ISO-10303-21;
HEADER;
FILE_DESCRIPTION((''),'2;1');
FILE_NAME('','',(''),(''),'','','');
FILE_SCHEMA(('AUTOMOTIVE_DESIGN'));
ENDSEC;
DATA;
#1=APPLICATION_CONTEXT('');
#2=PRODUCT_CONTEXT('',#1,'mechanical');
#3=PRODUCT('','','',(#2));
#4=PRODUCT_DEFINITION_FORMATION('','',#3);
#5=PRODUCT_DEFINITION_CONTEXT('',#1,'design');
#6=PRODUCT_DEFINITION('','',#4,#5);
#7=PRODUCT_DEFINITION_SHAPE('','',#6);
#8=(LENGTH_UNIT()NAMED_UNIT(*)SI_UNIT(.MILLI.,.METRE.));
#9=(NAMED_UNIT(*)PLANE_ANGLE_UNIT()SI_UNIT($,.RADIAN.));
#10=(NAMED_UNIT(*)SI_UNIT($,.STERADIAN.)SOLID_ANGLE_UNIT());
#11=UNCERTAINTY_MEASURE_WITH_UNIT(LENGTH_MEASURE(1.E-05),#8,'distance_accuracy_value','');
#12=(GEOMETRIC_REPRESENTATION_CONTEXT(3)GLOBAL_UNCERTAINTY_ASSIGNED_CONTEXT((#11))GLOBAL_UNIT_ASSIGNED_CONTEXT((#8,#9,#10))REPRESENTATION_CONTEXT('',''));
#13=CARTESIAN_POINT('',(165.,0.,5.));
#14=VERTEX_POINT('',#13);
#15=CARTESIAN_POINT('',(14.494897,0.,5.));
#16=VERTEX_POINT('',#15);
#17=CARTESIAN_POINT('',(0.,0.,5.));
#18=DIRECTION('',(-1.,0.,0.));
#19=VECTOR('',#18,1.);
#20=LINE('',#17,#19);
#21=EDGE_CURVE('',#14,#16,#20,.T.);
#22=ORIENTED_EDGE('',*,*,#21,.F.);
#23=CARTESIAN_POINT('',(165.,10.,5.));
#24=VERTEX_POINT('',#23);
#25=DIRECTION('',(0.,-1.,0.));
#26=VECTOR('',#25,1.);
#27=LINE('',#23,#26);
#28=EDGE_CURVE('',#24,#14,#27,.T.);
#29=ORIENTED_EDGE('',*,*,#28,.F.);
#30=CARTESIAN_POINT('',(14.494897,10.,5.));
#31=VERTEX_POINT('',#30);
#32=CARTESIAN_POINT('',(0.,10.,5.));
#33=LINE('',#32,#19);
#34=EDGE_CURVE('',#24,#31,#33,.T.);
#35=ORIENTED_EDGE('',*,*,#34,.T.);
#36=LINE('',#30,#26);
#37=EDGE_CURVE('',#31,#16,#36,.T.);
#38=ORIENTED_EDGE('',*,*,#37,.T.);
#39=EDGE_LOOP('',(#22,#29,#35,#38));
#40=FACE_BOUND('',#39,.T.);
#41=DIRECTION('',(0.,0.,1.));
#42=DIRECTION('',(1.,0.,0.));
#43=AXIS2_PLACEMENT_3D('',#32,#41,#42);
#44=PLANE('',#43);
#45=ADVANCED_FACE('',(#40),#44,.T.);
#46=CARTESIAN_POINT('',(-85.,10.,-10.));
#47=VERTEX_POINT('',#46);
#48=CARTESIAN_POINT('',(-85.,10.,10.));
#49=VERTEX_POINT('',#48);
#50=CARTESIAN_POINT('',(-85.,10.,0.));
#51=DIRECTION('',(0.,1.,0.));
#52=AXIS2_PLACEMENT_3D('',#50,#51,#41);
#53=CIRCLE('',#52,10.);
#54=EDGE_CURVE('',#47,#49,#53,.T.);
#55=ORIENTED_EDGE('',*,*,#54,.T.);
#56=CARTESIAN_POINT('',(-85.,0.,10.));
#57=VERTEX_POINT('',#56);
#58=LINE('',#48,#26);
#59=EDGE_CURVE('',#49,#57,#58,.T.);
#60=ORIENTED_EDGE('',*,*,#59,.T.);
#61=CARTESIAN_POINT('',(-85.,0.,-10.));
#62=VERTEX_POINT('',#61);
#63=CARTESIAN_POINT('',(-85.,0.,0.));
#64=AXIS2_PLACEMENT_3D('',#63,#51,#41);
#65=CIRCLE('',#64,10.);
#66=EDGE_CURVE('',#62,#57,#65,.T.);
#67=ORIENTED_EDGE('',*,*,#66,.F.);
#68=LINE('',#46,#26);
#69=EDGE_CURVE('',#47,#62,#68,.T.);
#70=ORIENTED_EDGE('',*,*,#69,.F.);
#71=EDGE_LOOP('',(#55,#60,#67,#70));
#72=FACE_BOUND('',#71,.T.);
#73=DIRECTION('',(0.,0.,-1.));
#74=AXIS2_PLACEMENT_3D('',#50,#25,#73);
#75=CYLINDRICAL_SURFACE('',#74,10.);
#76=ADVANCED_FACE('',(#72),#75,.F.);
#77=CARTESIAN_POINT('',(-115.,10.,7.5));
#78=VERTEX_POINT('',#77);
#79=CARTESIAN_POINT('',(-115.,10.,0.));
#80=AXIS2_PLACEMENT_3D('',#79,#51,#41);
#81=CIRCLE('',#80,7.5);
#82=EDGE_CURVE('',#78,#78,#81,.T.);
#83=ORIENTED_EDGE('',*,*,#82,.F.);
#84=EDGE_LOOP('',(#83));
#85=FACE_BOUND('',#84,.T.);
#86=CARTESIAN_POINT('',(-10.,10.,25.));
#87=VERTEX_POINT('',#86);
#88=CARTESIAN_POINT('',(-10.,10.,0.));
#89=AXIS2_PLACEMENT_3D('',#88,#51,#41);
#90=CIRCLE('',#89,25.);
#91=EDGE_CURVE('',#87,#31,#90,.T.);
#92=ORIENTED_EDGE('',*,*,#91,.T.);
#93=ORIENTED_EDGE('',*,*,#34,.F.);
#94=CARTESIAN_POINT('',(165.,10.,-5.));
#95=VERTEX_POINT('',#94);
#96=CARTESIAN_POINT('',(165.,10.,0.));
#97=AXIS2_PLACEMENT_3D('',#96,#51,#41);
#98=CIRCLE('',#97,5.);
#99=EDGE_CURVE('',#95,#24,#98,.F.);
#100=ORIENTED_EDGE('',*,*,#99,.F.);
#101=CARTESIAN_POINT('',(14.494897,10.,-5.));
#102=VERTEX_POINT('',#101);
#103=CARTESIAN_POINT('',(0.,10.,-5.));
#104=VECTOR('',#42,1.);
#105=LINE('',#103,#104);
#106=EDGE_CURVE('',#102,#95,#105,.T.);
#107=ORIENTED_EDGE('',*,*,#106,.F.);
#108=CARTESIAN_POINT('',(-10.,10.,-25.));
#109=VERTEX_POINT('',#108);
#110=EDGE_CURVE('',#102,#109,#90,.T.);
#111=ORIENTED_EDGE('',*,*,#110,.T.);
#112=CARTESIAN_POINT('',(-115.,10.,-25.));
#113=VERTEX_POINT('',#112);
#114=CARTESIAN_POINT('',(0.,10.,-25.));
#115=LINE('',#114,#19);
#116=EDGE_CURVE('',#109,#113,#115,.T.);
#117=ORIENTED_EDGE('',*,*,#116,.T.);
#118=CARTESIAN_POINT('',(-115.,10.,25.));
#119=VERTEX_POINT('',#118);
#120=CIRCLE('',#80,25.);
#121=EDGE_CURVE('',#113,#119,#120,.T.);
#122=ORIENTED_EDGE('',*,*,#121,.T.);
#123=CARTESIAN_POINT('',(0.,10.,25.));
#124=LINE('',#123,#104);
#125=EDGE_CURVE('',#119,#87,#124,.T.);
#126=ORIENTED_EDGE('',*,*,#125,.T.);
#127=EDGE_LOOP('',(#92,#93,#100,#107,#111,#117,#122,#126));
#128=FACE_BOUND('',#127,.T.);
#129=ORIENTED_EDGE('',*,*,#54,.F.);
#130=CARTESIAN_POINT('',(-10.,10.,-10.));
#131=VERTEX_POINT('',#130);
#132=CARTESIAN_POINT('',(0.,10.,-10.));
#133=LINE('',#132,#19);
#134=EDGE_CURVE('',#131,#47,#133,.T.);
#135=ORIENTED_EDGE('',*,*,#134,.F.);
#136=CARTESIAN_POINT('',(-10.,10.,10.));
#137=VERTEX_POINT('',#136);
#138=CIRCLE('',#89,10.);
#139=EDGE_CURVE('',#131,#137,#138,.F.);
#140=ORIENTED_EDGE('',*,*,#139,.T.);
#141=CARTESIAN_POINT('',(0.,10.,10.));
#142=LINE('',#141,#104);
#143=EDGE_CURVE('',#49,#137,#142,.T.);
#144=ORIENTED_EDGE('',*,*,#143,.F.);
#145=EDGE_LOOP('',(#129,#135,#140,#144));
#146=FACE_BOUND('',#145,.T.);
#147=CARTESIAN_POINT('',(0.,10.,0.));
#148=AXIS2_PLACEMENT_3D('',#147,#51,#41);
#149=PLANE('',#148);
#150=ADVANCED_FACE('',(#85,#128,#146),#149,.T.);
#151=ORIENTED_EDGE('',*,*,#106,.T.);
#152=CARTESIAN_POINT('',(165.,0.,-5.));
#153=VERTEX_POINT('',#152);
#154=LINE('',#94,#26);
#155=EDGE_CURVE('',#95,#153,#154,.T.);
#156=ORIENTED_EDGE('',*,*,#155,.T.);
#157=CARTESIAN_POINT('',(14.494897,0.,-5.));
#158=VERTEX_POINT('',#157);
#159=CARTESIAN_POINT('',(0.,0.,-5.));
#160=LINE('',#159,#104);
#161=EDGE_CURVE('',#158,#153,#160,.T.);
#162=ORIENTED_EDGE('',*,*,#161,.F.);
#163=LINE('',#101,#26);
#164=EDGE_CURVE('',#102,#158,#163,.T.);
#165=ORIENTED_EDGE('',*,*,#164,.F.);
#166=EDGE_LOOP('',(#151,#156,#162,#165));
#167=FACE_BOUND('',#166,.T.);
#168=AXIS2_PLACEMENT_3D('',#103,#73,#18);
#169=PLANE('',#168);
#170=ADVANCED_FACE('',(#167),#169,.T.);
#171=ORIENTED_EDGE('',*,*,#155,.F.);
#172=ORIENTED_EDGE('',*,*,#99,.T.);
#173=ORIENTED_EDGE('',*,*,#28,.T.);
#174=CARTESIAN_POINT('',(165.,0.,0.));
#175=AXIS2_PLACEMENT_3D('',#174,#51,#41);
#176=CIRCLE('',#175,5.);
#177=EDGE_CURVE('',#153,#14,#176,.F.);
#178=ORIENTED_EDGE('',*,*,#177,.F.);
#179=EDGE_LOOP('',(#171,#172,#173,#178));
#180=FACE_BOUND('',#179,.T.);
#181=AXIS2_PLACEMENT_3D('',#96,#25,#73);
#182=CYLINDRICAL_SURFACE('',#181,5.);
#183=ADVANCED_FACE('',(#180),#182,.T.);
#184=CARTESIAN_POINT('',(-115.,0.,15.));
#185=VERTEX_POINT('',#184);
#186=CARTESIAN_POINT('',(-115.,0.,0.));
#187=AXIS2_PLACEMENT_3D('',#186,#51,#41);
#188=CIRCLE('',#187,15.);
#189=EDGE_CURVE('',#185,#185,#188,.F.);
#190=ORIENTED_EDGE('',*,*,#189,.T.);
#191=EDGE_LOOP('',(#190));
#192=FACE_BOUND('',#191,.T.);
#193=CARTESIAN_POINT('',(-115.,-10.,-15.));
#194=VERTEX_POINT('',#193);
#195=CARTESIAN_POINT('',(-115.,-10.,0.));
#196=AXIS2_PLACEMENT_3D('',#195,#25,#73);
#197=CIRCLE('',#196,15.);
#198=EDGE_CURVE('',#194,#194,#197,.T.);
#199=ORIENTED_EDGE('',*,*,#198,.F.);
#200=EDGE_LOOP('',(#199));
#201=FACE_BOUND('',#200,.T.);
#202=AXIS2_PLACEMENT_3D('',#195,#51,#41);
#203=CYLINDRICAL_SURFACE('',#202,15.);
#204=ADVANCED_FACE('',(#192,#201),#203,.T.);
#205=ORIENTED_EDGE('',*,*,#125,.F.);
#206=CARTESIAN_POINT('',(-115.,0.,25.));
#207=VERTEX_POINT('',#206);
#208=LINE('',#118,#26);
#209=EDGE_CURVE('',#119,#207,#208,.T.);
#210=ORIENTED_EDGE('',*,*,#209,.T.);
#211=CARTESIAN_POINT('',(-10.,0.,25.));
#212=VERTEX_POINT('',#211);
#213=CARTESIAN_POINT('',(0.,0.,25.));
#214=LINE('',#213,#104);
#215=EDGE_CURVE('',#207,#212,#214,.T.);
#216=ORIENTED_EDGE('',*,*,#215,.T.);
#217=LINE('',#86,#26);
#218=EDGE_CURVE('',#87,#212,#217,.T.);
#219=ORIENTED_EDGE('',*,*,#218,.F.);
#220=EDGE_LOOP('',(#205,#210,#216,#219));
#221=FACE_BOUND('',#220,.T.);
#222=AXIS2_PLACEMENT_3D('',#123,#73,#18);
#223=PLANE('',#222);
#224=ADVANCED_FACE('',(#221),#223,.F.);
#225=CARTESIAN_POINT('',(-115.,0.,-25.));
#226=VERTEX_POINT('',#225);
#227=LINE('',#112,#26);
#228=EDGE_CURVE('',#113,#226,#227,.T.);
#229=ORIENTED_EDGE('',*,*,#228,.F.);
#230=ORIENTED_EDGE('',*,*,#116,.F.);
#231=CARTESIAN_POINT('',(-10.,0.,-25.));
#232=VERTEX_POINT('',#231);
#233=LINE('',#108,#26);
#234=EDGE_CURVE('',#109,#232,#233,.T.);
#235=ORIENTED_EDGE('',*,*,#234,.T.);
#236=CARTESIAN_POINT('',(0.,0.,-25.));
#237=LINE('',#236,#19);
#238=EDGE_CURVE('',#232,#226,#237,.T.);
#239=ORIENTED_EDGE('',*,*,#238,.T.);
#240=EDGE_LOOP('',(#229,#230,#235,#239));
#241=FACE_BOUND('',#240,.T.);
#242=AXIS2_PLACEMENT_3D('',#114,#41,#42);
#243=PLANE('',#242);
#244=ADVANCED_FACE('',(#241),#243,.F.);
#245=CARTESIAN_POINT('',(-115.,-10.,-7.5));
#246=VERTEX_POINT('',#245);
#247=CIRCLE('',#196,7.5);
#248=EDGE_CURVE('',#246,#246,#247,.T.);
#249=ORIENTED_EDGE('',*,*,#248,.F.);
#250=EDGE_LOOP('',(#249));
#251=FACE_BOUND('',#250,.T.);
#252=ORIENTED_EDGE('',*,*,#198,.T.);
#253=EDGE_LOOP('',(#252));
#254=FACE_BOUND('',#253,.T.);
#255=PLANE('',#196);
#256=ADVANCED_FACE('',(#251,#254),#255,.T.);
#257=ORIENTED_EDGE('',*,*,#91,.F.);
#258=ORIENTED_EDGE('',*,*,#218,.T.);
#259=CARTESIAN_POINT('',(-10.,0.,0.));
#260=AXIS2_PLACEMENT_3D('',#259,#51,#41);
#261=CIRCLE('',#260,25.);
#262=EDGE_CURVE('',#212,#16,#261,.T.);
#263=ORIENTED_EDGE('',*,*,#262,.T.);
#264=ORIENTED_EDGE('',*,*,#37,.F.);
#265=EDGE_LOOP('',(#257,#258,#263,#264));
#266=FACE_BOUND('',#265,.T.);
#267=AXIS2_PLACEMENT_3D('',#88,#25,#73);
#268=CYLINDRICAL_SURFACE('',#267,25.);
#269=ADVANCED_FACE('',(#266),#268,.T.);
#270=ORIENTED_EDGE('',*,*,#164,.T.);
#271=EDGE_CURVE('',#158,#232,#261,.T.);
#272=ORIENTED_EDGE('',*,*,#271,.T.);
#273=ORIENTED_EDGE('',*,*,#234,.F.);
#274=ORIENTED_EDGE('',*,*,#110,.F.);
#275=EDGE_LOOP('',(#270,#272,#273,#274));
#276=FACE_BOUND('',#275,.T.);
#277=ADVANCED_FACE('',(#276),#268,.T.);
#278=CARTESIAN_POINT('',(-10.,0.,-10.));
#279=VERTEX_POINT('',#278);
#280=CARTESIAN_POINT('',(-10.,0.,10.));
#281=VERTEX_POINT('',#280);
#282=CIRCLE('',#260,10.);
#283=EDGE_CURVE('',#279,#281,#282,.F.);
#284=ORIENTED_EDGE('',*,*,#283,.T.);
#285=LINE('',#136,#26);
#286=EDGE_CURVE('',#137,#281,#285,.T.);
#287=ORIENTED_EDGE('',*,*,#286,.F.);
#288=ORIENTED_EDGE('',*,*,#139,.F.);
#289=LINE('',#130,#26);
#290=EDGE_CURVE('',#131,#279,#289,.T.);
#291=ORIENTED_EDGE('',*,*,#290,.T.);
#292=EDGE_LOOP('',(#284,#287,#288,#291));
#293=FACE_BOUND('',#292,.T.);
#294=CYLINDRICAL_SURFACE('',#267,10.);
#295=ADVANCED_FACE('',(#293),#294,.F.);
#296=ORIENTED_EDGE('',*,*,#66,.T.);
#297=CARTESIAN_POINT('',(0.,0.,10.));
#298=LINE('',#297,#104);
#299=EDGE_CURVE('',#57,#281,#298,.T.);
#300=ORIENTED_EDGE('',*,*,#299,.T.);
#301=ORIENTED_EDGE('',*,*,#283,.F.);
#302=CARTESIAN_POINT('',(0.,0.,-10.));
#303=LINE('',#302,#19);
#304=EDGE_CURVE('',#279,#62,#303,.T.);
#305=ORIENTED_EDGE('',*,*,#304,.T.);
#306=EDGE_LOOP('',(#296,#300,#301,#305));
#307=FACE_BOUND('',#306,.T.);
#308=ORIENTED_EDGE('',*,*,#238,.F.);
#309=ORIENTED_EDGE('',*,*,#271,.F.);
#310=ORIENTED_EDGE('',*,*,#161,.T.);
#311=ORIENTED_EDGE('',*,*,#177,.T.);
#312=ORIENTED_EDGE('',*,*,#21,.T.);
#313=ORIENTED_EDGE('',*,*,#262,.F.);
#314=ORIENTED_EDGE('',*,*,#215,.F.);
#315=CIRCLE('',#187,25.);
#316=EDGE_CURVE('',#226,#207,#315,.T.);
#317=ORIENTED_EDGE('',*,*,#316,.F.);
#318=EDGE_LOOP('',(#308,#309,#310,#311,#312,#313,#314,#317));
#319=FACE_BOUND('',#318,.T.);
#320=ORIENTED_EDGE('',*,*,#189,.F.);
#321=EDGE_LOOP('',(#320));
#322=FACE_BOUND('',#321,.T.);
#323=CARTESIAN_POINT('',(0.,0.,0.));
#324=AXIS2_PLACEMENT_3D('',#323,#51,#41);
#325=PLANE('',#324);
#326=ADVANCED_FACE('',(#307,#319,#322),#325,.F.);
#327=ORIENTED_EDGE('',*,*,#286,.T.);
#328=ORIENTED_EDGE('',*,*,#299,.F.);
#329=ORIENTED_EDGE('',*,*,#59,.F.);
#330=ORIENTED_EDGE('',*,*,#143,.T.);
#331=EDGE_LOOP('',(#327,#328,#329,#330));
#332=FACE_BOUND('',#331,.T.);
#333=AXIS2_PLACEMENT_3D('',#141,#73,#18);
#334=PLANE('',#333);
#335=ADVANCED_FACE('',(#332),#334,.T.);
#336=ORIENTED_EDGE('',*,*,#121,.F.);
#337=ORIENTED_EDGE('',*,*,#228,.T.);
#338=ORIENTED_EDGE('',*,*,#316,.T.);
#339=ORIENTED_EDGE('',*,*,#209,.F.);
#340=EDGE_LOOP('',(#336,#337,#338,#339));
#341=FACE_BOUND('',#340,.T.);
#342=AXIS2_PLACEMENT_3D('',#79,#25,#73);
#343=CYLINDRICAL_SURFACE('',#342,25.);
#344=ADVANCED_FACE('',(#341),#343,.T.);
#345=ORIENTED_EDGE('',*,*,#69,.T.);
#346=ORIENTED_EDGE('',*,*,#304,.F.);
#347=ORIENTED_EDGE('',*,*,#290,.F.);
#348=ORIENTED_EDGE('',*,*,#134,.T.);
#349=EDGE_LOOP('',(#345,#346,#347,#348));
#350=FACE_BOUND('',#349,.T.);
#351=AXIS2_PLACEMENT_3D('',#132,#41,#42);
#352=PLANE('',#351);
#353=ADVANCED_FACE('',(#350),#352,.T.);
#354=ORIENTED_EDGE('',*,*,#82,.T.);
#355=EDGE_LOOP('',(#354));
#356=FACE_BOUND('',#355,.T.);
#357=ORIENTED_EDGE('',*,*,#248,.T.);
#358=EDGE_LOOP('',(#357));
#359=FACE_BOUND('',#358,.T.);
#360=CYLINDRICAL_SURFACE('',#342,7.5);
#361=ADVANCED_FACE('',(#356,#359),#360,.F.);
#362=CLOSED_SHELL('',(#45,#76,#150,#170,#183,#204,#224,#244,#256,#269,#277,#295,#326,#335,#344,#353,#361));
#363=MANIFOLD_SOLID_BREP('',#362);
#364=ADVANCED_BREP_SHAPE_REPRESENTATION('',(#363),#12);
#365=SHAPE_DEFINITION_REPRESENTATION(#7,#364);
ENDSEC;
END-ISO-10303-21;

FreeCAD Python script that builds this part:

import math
import FreeCAD as App
import Part
import Sketcher
Q = App.Units.Quantity

doc = App.newDocument("Part")
body = doc.addObject("PartDesign::Body", "Body")

sketch1 = doc.addObject("Sketcher::SketchObject", "Sketch")
body.addObject(sketch1)
sketch1.AttachmentSupport = (doc.XZ_Plane, [""])
sketch1.MapMode = "FlatFace"
sketch1.addGeometry(Part.LineSegment(App.Vector(165, -5, 0), App.Vector(14, -5, 0)), False)
sketch1.addGeometry(Part.ArcOfCircle(Part.Circle(App.Vector(-10, 0, 0), App.Vector(0, 0, 1), 25), math.radians(-90), math.radians(-12)), False)
sketch1.addGeometry(Part.LineSegment(App.Vector(-10, -25, 0), App.Vector(-115, -25, 0)), False)
sketch1.addGeometry(Part.ArcOfCircle(Part.Circle(App.Vector(-115, 0, 0), App.Vector(0, 0, 1), 25), math.radians(90), math.radians(270)), False)
sketch1.addGeometry(Part.LineSegment(App.Vector(-115, 25, 0), App.Vector(-10, 25, 0)), False)
sketch1.addGeometry(Part.ArcOfCircle(Part.Circle(App.Vector(-10, 0, 0), App.Vector(0, 0, 1), 25), math.radians(12), math.radians(90)), False)
sketch1.addGeometry(Part.LineSegment(App.Vector(14, 5, 0), App.Vector(165, 5, 0)), False)
sketch1.addGeometry(Part.ArcOfCircle(Part.Circle(App.Vector(165, 0, 0), App.Vector(0, 0, 1), 5), math.radians(-90), math.radians(90)), False)
sketch1.addGeometry(Part.LineSegment(App.Vector(-85, -10, 0), App.Vector(-10, -10, 0)), False)
sketch1.addGeometry(Part.ArcOfCircle(Part.Circle(App.Vector(-10, 0, 0), App.Vector(0, 0, 1), 10), math.radians(-90), math.radians(90)), False)
sketch1.addGeometry(Part.LineSegment(App.Vector(-10, 10, 0), App.Vector(-85, 10, 0)), False)
sketch1.addGeometry(Part.ArcOfCircle(Part.Circle(App.Vector(-85, 0, 0), App.Vector(0, 0, 1), 10), math.radians(90), math.radians(270)), False)
sketch1.addGeometry(Part.Circle(App.Vector(-115, 0, 0), App.Vector(0, 0, 1), 8), False)
sketch1.addConstraint(Sketcher.Constraint("Coincident", 0, 2, 1, 2))
sketch1.addConstraint(Sketcher.Constraint("Tangent", 1, 1, 2, 1))
sketch1.addConstraint(Sketcher.Constraint("Tangent", 2, 2, 3, 2))
sketch1.addConstraint(Sketcher.Constraint("Tangent", 3, 1, 4, 1))
sketch1.addConstraint(Sketcher.Constraint("Tangent", 4, 2, 5, 2))
sketch1.addConstraint(Sketcher.Constraint("Coincident", 5, 1, 6, 1))
sketch1.addConstraint(Sketcher.Constraint("Tangent", 6, 2, 7, 2))
sketch1.addConstraint(Sketcher.Constraint("Tangent", 7, 1, 0, 1))
sketch1.addConstraint(Sketcher.Constraint("Tangent", 8, 2, 9, 1))
sketch1.addConstraint(Sketcher.Constraint("Tangent", 9, 2, 10, 1))
sketch1.addConstraint(Sketcher.Constraint("Tangent", 10, 2, 11, 1))
sketch1.addConstraint(Sketcher.Constraint("Tangent", 11, 2, 8, 1))
sketch1.addConstraint(Sketcher.Constraint("Horizontal", 0))
sketch1.addConstraint(Sketcher.Constraint("Horizontal", 2))
sketch1.addConstraint(Sketcher.Constraint("Horizontal", 4))
sketch1.addConstraint(Sketcher.Constraint("Horizontal", 6))
sketch1.addConstraint(Sketcher.Constraint("Horizontal", 8))
sketch1.addConstraint(Sketcher.Constraint("Horizontal", 10))
sketch1.addConstraint(Sketcher.Constraint("Coincident", 5, 3, 1, 3))
sketch1.addConstraint(Sketcher.Constraint("Coincident", 9, 3, 1, 3))
sketch1.addConstraint(Sketcher.Constraint("Coincident", 12, 3, 3, 3))
sketch1.addConstraint(Sketcher.Constraint("Equal", 1, 3))
sketch1.addConstraint(Sketcher.Constraint("Symmetric", 0, 2, 5, 1, -1))
sketch1.addConstraint(Sketcher.Constraint("Diameter", 12, Q("15 mm")))
sketch1.addConstraint(Sketcher.Constraint("Radius", 1, Q("25 mm")))
sketch1.addConstraint(Sketcher.Constraint("Radius", 7, Q("5 mm")))
sketch1.addConstraint(Sketcher.Constraint("Radius", 9, Q("10 mm")))
sketch1.addConstraint(Sketcher.Constraint("DistanceX", 2, 2, 2, 1, Q("105 mm")))
sketch1.addConstraint(Sketcher.Constraint("DistanceX", 8, 1, 8, 2, Q("75 mm")))
sketch1.addConstraint(Sketcher.Constraint("DistanceX", 1, 3, -1, 1, Q("10 mm")))
sketch1.addConstraint(Sketcher.Constraint("DistanceX", -1, 1, 7, 3, Q("165 mm")))
pad1 = doc.addObject("PartDesign::Pad", "Pad")
body.addObject(pad1)
pad1.Profile = sketch1
pad1.Length = 10
pad1.Reversed = True

sketch2 = doc.addObject("Sketcher::SketchObject", "Sketch001")
body.addObject(sketch2)
sketch2.AttachmentSupport = (doc.XZ_Plane, [""])
sketch2.MapMode = "FlatFace"
sketch2.AttachmentOffset = App.Placement(App.Vector(0, 0, 10), App.Rotation())
sketch2.addGeometry(Part.Circle(App.Vector(-115, 0, 0), App.Vector(0, 0, 1), 15), False)
sketch2.addGeometry(Part.Circle(App.Vector(-115, 0, 0), App.Vector(0, 0, 1), 8), False)
sketch2.addConstraint(Sketcher.Constraint("Coincident", 1, 3, 0, 3))
sketch2.addConstraint(Sketcher.Constraint("PointOnObject", 0, 3, -1))
sketch2.addConstraint(Sketcher.Constraint("Diameter", 0, Q("30 mm")))
sketch2.addConstraint(Sketcher.Constraint("Diameter", 1, Q("15 mm")))
sketch2.addConstraint(Sketcher.Constraint("DistanceX", 0, 3, -1, 1, Q("115 mm")))
pad2 = doc.addObject("PartDesign::Pad", "Pad001")
body.addObject(pad2)
pad2.Profile = sketch2
pad2.Length = 10
pad2.Reversed = True

doc.recompute()
